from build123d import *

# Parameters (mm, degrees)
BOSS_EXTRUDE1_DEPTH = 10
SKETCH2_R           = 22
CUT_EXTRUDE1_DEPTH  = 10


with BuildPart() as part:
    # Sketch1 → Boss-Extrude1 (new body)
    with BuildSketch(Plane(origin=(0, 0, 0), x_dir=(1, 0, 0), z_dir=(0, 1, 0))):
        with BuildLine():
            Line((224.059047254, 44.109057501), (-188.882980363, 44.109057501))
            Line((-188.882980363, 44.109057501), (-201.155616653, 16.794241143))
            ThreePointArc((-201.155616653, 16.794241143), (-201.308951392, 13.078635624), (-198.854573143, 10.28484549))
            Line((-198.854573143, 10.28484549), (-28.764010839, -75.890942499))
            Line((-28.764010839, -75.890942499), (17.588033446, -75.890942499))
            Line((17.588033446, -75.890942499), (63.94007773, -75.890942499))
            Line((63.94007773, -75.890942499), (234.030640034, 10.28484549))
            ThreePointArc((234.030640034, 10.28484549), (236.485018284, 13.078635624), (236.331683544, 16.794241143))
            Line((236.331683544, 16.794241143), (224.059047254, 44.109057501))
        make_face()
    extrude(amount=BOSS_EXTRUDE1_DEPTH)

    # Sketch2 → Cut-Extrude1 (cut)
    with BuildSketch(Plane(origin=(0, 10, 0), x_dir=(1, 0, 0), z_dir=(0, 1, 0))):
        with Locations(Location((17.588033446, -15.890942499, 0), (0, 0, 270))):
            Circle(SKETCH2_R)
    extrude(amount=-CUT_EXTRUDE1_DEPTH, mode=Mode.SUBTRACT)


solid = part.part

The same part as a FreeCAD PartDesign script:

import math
import FreeCAD as App
import Part
import Sketcher
Q = App.Units.Quantity

doc = App.newDocument("Part")
body = doc.addObject("PartDesign::Body", "Body")

sketch1 = body.newObject("Sketcher::SketchObject", "Sketch")
sketch1.AttachmentSupport = (doc.getObject("XZ_Plane"), [""])
sketch1.MapMode = "FlatFace"
sketch1.addGeometry(Part.LineSegment(App.Vector(224.1, -44.1, 0), App.Vector(-188.9, -44.1, 0)), False)
sketch1.addGeometry(Part.LineSegment(App.Vector(-188.9, -44.1, 0), App.Vector(-201.2, -16.8, 0)), False)
sketch1.addGeometry(Part.ArcOfCircle(Part.Circle(App.Vector(-196.6, -14.7, 0), App.Vector(0, 0, 1), 5), math.radians(117), math.radians(204)), False)
sketch1.addGeometry(Part.LineSegment(App.Vector(-198.9, -10.3, 0), App.Vector(-28.8, 75.9, 0)), False)
sketch1.addGeometry(Part.LineSegment(App.Vector(-28.8, 75.9, 0), App.Vector(63.9, 75.9, 0)), False)
sketch1.addGeometry(Part.LineSegment(App.Vector(63.9, 75.9, 0), App.Vector(234, -10.3, 0)), False)
sketch1.addGeometry(Part.ArcOfCircle(Part.Circle(App.Vector(231.8, -14.7, 0), App.Vector(0, 0, 1), 5), math.radians(-24), math.radians(63)), False)
sketch1.addGeometry(Part.LineSegment(App.Vector(236.3, -16.8, 0), App.Vector(224.1, -44.1, 0)), False)
sketch1.addConstraint(Sketcher.Constraint("Coincident", 0, 2, 1, 1))
sketch1.addConstraint(Sketcher.Constraint("Tangent", 1, 2, 2, 2))
sketch1.addConstraint(Sketcher.Constraint("Tangent", 2, 1, 3, 1))
sketch1.addConstraint(Sketcher.Constraint("Coincident", 3, 2, 4, 1))
sketch1.addConstraint(Sketcher.Constraint("Coincident", 4, 2, 5, 1))
sketch1.addConstraint(Sketcher.Constraint("Tangent", 5, 2, 6, 2))
sketch1.addConstraint(Sketcher.Constraint("Tangent", 6, 1, 7, 1))
sketch1.addConstraint(Sketcher.Constraint("Coincident", 7, 2, 0, 1))
sketch1.addConstraint(Sketcher.Constraint("Horizontal", 0))
sketch1.addConstraint(Sketcher.Constraint("Horizontal", 4))
sketch1.addConstraint(Sketcher.Constraint("Equal", 2, 6))
sketch1.addConstraint(Sketcher.Constraint("Horizontal", 2, 3, 6, 3))
sketch1.addConstraint(Sketcher.Constraint("Horizontal", 2, 1, 5, 2))
sketch1.addConstraint(Sketcher.Constraint("Horizontal", 1, 2, 6, 1))
sketch1.addConstraint(Sketcher.Constraint("Radius", 2, Q("5 mm")))
sketch1.addConstraint(Sketcher.Constraint("DistanceY", 0, 2, 3, 2, Q("120 mm")))
sketch1.addConstraint(Sketcher.Constraint("DistanceX", 4, 1, 4, 2, Q("92.704089 mm")))
sketch1.addConstraint(Sketcher.Constraint("DistanceX", 3, 2, 6, 3, Q("260.534898 mm")))
sketch1.addConstraint(Sketcher.Constraint("Distance", 1, Q("29.94523 mm")))
sketch1.addConstraint(Sketcher.Constraint("Distance", 3, Q("190.675289 mm")))
sketch1.addConstraint(Sketcher.Constraint("DistanceX", 2, 3, -1, 1, Q("196.594821 mm")))
sketch1.addConstraint(Sketcher.Constraint("DistanceY", 2, 3, -1, 1, Q("14.745061 mm")))
pad1 = body.newObject("PartDesign::Pad", "Pad")
pad1.Profile = sketch1
pad1.Length = 10
pad1.Reversed = True

sketch2 = body.newObject("Sketcher::SketchObject", "Sketch001")
sketch2.AttachmentSupport = (doc.getObject("XZ_Plane"), [""])
sketch2.MapMode = "FlatFace"
sketch2.AttachmentOffset = App.Placement(App.Vector(0, 0, -10), App.Rotation())
sketch2.addGeometry(Part.Circle(App.Vector(18, 16, 0), App.Vector(0, 0, 1), 22), False)
sketch2.addConstraint(Sketcher.Constraint("Diameter", 0, Q("44 mm")))
sketch2.addConstraint(Sketcher.Constraint("DistanceX", -1, 1, 0, 3, Q("17.588033 mm")))
sketch2.addConstraint(Sketcher.Constraint("DistanceY", -1, 1, 0, 3, Q("15.890942 mm")))
pocket1 = body.newObject("PartDesign::Pocket", "Pocket")
pocket1.Profile = sketch2
pocket1.Length = 10
pocket1.Reversed = True

doc.recompute()
